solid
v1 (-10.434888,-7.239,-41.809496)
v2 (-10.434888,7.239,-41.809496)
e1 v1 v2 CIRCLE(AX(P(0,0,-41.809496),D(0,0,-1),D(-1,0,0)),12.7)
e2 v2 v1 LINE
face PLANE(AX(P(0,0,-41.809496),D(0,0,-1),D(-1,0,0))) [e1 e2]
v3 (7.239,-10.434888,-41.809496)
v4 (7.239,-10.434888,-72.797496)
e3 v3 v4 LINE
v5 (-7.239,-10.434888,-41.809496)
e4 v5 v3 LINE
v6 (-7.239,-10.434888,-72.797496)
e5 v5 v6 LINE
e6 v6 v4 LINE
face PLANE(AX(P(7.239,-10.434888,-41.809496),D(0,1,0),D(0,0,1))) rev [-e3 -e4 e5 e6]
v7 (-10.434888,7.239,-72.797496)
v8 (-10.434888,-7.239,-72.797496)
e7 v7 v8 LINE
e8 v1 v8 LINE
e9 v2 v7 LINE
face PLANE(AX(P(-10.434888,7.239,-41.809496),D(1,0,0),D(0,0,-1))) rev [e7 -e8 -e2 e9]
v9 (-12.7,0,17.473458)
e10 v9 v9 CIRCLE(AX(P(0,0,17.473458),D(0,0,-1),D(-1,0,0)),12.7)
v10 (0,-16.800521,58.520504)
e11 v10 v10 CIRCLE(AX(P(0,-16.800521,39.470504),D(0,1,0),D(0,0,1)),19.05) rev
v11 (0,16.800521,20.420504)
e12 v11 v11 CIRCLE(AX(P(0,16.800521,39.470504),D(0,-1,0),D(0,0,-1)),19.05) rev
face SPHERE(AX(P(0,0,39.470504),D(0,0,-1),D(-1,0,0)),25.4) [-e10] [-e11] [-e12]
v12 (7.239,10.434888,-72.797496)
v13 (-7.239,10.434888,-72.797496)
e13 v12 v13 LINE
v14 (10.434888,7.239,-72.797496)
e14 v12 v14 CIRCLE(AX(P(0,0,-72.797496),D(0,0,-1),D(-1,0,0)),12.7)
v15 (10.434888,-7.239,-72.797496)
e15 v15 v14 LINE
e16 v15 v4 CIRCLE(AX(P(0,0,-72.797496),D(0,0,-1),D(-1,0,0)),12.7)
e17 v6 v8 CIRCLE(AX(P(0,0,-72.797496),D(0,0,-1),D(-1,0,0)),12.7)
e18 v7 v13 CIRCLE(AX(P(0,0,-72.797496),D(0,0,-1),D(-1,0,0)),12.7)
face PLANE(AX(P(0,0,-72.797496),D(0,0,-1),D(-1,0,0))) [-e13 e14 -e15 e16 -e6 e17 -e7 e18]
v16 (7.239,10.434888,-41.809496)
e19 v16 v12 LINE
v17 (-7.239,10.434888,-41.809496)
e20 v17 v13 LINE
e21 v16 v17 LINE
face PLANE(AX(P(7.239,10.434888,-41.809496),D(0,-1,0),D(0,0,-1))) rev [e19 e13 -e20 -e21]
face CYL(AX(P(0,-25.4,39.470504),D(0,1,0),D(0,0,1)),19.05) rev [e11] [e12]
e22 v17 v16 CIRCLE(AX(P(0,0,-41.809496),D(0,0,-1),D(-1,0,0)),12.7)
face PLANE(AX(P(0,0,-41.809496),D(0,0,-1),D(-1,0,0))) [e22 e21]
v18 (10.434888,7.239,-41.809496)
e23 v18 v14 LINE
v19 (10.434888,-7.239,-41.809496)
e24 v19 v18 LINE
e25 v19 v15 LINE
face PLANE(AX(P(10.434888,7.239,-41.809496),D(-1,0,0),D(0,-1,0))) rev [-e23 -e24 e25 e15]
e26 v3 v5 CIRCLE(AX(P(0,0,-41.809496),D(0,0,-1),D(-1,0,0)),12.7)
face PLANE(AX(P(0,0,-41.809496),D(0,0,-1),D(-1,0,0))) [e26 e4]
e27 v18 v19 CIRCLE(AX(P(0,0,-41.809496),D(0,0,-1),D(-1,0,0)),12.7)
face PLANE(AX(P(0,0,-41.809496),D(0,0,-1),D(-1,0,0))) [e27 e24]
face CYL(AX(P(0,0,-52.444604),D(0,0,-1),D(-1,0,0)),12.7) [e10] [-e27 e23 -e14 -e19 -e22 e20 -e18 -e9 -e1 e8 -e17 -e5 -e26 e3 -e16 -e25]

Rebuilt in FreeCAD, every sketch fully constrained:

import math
import FreeCAD as App
import Part
import Sketcher
from FreeCAD import Vector
Q = App.Units.Quantity

doc = App.newDocument("Part")
body = doc.addObject("PartDesign::Body", "Body")

# Sketch on XZ plane
sketch1 = body.newObject("Sketcher::SketchObject", "Sketch")
sketch1.AttachmentSupport = (doc.getObject("XZ_Plane"), [""])
sketch1.MapMode = "FlatFace"
sketch1.addGeometry([
    Part.LineSegment(Vector(0, 64.870504, 0), Vector(0, -72.797496, 0)),
    Part.LineSegment(Vector(0, -72.797496, 0), Vector(-12.7, -72.797496, 0)),
    Part.LineSegment(Vector(-12.7, -72.797496, 0), Vector(-12.7, 17.473458, 0)),
    Part.ArcOfCircle(Part.Circle(Vector(0, 39.470504, 0), Vector(0, 0, 1), 25.4), math.radians(90), math.radians(240)),
], False)
sketch1.addConstraint([
    Sketcher.Constraint("Coincident", 0, 2, 1, 1),
    Sketcher.Constraint("Coincident", 1, 2, 2, 1),
    Sketcher.Constraint("Coincident", 2, 2, 3, 2),
    Sketcher.Constraint("Coincident", 3, 1, 0, 1),
    Sketcher.Constraint("Vertical", 0),
    Sketcher.Constraint("Horizontal", 1),
    Sketcher.Constraint("Vertical", 2),
    Sketcher.Constraint("PointOnObject", 3, 3, -2),
    Sketcher.Constraint("PointOnObject", 0, 2, -2),
    Sketcher.Constraint("Radius", 3, Q("1 in")),
    Sketcher.Constraint("DistanceX", 1, 2, 1, 1, Q("0.5 in")),
    Sketcher.Constraint("DistanceY", 0, 2, 0, 1, Q("5.42 in")),
    Sketcher.Constraint("DistanceY", -1, 1, 2, 2, 17.473458),
])
revolution = body.newObject("PartDesign::Revolution", "Revolution")
revolution.Profile = sketch1
revolution.ReferenceAxis = (sketch1, ["V_Axis"])
revolution.Angle = 360

# Sketch on XZ plane
sketch2 = body.newObject("Sketcher::SketchObject", "Sketch001")
sketch2.AttachmentSupport = (doc.getObject("XZ_Plane"), [""])
sketch2.MapMode = "FlatFace"
sketch2.addGeometry(Part.Circle(Vector(0, 39.470504, 0), Vector(0, 0, 1), 19.05), False)
sketch2.addConstraint([
    Sketcher.Constraint("PointOnObject", 0, 3, -2),
    Sketcher.Constraint("Diameter", 0, Q("1.5 in")),
    Sketcher.Constraint("DistanceY", -1, 1, 0, 3, 39.470504),
])
pocket1 = body.newObject("PartDesign::Pocket", "Pocket")
pocket1.Profile = sketch2
pocket1.Type = "ThroughAll"
pocket1.Midplane = True

# Sketch on XY plane
sketch3 = body.newObject("Sketcher::SketchObject", "Sketch002")
sketch3.AttachmentSupport = (doc.getObject("XY_Plane"), [""])
sketch3.MapMode = "FlatFace"
sketch3.AttachmentOffset = App.Placement(Vector(0, 0, -72.797496), App.Rotation())
sketch3.addGeometry([
    Part.LineSegment(Vector(-7.239, -10.434888, 0), Vector(7.239, -10.434888, 0)),  # 0
    Part.ArcOfCircle(Part.Circle(Vector(0, 0, 0), Vector(0, 0, 1), 12.7), math.radians(-124.750226), math.radians(-55.249774)),  # 1
    Part.LineSegment(Vector(-10.434888, 7.239, 0), Vector(-10.434888, -7.239, 0)),  # 2
    Part.ArcOfCircle(Part.Circle(Vector(0, 0, 0), Vector(0, 0, 1), 12.7), math.radians(145.249774), math.radians(214.750226)),  # 3
    Part.LineSegment(Vector(10.434888, -7.239, 0), Vector(10.434888, 7.239, 0)),  # 4
    Part.ArcOfCircle(Part.Circle(Vector(0, 0, 0), Vector(0, 0, 1), 12.7), math.radians(-34.750226), math.radians(34.750226)),  # 5
    Part.LineSegment(Vector(7.239, 10.434888, 0), Vector(-7.239, 10.434888, 0)),  # 6
    Part.ArcOfCircle(Part.Circle(Vector(0, 0, 0), Vector(0, 0, 1), 12.7), math.radians(55.249774), math.radians(124.750226)),  # 7
], False)
sketch3.addConstraint([
    Sketcher.Constraint("Coincident", 0, 1, 1, 1),
    Sketcher.Constraint("Coincident", 1, 2, 0, 2),
    Sketcher.Constraint("Coincident", 2, 1, 3, 1),
    Sketcher.Constraint("Coincident", 3, 2, 2, 2),
    Sketcher.Constraint("Coincident", 4, 1, 5, 1),
    Sketcher.Constraint("Coincident", 5, 2, 4, 2),
    Sketcher.Constraint("Coincident", 6, 1, 7, 1),
    Sketcher.Constraint("Coincident", 7, 2, 6, 2),
    Sketcher.Constraint("Horizontal", 0),
    Sketcher.Constraint("Vertical", 2),
    Sketcher.Constraint("Vertical", 4),
    Sketcher.Constraint("Horizontal", 6),
    Sketcher.Constraint("Coincident", 1, 3, -1, 1),
    Sketcher.Constraint("Coincident", 3, 3, -1, 1),
    Sketcher.Constraint("Coincident", 5, 3, -1, 1),
    Sketcher.Constraint("Coincident", 7, 3, -1, 1),
    Sketcher.Constraint("Equal", 1, 3),
    Sketcher.Constraint("Equal", 3, 5),
    Sketcher.Constraint("Equal", 5, 7),
    Sketcher.Constraint("Horizontal", 3, 2, 4, 1),
    Sketcher.Constraint("Vertical", 1, 2, 6, 1),
    Sketcher.Constraint("Equal", 6, 2),
    Sketcher.Constraint("Radius", 1, Q("0.5 in")),
    Sketcher.Constraint("DistanceX", 0, 1, 0, 2, Q("0.57 in")),
])
pocket2 = body.newObject("PartDesign::Pocket", "Pocket001")
pocket2.Profile = sketch3
pocket2.Length = Q("1.22 in")
pocket2.Reversed = True

doc.recompute()
